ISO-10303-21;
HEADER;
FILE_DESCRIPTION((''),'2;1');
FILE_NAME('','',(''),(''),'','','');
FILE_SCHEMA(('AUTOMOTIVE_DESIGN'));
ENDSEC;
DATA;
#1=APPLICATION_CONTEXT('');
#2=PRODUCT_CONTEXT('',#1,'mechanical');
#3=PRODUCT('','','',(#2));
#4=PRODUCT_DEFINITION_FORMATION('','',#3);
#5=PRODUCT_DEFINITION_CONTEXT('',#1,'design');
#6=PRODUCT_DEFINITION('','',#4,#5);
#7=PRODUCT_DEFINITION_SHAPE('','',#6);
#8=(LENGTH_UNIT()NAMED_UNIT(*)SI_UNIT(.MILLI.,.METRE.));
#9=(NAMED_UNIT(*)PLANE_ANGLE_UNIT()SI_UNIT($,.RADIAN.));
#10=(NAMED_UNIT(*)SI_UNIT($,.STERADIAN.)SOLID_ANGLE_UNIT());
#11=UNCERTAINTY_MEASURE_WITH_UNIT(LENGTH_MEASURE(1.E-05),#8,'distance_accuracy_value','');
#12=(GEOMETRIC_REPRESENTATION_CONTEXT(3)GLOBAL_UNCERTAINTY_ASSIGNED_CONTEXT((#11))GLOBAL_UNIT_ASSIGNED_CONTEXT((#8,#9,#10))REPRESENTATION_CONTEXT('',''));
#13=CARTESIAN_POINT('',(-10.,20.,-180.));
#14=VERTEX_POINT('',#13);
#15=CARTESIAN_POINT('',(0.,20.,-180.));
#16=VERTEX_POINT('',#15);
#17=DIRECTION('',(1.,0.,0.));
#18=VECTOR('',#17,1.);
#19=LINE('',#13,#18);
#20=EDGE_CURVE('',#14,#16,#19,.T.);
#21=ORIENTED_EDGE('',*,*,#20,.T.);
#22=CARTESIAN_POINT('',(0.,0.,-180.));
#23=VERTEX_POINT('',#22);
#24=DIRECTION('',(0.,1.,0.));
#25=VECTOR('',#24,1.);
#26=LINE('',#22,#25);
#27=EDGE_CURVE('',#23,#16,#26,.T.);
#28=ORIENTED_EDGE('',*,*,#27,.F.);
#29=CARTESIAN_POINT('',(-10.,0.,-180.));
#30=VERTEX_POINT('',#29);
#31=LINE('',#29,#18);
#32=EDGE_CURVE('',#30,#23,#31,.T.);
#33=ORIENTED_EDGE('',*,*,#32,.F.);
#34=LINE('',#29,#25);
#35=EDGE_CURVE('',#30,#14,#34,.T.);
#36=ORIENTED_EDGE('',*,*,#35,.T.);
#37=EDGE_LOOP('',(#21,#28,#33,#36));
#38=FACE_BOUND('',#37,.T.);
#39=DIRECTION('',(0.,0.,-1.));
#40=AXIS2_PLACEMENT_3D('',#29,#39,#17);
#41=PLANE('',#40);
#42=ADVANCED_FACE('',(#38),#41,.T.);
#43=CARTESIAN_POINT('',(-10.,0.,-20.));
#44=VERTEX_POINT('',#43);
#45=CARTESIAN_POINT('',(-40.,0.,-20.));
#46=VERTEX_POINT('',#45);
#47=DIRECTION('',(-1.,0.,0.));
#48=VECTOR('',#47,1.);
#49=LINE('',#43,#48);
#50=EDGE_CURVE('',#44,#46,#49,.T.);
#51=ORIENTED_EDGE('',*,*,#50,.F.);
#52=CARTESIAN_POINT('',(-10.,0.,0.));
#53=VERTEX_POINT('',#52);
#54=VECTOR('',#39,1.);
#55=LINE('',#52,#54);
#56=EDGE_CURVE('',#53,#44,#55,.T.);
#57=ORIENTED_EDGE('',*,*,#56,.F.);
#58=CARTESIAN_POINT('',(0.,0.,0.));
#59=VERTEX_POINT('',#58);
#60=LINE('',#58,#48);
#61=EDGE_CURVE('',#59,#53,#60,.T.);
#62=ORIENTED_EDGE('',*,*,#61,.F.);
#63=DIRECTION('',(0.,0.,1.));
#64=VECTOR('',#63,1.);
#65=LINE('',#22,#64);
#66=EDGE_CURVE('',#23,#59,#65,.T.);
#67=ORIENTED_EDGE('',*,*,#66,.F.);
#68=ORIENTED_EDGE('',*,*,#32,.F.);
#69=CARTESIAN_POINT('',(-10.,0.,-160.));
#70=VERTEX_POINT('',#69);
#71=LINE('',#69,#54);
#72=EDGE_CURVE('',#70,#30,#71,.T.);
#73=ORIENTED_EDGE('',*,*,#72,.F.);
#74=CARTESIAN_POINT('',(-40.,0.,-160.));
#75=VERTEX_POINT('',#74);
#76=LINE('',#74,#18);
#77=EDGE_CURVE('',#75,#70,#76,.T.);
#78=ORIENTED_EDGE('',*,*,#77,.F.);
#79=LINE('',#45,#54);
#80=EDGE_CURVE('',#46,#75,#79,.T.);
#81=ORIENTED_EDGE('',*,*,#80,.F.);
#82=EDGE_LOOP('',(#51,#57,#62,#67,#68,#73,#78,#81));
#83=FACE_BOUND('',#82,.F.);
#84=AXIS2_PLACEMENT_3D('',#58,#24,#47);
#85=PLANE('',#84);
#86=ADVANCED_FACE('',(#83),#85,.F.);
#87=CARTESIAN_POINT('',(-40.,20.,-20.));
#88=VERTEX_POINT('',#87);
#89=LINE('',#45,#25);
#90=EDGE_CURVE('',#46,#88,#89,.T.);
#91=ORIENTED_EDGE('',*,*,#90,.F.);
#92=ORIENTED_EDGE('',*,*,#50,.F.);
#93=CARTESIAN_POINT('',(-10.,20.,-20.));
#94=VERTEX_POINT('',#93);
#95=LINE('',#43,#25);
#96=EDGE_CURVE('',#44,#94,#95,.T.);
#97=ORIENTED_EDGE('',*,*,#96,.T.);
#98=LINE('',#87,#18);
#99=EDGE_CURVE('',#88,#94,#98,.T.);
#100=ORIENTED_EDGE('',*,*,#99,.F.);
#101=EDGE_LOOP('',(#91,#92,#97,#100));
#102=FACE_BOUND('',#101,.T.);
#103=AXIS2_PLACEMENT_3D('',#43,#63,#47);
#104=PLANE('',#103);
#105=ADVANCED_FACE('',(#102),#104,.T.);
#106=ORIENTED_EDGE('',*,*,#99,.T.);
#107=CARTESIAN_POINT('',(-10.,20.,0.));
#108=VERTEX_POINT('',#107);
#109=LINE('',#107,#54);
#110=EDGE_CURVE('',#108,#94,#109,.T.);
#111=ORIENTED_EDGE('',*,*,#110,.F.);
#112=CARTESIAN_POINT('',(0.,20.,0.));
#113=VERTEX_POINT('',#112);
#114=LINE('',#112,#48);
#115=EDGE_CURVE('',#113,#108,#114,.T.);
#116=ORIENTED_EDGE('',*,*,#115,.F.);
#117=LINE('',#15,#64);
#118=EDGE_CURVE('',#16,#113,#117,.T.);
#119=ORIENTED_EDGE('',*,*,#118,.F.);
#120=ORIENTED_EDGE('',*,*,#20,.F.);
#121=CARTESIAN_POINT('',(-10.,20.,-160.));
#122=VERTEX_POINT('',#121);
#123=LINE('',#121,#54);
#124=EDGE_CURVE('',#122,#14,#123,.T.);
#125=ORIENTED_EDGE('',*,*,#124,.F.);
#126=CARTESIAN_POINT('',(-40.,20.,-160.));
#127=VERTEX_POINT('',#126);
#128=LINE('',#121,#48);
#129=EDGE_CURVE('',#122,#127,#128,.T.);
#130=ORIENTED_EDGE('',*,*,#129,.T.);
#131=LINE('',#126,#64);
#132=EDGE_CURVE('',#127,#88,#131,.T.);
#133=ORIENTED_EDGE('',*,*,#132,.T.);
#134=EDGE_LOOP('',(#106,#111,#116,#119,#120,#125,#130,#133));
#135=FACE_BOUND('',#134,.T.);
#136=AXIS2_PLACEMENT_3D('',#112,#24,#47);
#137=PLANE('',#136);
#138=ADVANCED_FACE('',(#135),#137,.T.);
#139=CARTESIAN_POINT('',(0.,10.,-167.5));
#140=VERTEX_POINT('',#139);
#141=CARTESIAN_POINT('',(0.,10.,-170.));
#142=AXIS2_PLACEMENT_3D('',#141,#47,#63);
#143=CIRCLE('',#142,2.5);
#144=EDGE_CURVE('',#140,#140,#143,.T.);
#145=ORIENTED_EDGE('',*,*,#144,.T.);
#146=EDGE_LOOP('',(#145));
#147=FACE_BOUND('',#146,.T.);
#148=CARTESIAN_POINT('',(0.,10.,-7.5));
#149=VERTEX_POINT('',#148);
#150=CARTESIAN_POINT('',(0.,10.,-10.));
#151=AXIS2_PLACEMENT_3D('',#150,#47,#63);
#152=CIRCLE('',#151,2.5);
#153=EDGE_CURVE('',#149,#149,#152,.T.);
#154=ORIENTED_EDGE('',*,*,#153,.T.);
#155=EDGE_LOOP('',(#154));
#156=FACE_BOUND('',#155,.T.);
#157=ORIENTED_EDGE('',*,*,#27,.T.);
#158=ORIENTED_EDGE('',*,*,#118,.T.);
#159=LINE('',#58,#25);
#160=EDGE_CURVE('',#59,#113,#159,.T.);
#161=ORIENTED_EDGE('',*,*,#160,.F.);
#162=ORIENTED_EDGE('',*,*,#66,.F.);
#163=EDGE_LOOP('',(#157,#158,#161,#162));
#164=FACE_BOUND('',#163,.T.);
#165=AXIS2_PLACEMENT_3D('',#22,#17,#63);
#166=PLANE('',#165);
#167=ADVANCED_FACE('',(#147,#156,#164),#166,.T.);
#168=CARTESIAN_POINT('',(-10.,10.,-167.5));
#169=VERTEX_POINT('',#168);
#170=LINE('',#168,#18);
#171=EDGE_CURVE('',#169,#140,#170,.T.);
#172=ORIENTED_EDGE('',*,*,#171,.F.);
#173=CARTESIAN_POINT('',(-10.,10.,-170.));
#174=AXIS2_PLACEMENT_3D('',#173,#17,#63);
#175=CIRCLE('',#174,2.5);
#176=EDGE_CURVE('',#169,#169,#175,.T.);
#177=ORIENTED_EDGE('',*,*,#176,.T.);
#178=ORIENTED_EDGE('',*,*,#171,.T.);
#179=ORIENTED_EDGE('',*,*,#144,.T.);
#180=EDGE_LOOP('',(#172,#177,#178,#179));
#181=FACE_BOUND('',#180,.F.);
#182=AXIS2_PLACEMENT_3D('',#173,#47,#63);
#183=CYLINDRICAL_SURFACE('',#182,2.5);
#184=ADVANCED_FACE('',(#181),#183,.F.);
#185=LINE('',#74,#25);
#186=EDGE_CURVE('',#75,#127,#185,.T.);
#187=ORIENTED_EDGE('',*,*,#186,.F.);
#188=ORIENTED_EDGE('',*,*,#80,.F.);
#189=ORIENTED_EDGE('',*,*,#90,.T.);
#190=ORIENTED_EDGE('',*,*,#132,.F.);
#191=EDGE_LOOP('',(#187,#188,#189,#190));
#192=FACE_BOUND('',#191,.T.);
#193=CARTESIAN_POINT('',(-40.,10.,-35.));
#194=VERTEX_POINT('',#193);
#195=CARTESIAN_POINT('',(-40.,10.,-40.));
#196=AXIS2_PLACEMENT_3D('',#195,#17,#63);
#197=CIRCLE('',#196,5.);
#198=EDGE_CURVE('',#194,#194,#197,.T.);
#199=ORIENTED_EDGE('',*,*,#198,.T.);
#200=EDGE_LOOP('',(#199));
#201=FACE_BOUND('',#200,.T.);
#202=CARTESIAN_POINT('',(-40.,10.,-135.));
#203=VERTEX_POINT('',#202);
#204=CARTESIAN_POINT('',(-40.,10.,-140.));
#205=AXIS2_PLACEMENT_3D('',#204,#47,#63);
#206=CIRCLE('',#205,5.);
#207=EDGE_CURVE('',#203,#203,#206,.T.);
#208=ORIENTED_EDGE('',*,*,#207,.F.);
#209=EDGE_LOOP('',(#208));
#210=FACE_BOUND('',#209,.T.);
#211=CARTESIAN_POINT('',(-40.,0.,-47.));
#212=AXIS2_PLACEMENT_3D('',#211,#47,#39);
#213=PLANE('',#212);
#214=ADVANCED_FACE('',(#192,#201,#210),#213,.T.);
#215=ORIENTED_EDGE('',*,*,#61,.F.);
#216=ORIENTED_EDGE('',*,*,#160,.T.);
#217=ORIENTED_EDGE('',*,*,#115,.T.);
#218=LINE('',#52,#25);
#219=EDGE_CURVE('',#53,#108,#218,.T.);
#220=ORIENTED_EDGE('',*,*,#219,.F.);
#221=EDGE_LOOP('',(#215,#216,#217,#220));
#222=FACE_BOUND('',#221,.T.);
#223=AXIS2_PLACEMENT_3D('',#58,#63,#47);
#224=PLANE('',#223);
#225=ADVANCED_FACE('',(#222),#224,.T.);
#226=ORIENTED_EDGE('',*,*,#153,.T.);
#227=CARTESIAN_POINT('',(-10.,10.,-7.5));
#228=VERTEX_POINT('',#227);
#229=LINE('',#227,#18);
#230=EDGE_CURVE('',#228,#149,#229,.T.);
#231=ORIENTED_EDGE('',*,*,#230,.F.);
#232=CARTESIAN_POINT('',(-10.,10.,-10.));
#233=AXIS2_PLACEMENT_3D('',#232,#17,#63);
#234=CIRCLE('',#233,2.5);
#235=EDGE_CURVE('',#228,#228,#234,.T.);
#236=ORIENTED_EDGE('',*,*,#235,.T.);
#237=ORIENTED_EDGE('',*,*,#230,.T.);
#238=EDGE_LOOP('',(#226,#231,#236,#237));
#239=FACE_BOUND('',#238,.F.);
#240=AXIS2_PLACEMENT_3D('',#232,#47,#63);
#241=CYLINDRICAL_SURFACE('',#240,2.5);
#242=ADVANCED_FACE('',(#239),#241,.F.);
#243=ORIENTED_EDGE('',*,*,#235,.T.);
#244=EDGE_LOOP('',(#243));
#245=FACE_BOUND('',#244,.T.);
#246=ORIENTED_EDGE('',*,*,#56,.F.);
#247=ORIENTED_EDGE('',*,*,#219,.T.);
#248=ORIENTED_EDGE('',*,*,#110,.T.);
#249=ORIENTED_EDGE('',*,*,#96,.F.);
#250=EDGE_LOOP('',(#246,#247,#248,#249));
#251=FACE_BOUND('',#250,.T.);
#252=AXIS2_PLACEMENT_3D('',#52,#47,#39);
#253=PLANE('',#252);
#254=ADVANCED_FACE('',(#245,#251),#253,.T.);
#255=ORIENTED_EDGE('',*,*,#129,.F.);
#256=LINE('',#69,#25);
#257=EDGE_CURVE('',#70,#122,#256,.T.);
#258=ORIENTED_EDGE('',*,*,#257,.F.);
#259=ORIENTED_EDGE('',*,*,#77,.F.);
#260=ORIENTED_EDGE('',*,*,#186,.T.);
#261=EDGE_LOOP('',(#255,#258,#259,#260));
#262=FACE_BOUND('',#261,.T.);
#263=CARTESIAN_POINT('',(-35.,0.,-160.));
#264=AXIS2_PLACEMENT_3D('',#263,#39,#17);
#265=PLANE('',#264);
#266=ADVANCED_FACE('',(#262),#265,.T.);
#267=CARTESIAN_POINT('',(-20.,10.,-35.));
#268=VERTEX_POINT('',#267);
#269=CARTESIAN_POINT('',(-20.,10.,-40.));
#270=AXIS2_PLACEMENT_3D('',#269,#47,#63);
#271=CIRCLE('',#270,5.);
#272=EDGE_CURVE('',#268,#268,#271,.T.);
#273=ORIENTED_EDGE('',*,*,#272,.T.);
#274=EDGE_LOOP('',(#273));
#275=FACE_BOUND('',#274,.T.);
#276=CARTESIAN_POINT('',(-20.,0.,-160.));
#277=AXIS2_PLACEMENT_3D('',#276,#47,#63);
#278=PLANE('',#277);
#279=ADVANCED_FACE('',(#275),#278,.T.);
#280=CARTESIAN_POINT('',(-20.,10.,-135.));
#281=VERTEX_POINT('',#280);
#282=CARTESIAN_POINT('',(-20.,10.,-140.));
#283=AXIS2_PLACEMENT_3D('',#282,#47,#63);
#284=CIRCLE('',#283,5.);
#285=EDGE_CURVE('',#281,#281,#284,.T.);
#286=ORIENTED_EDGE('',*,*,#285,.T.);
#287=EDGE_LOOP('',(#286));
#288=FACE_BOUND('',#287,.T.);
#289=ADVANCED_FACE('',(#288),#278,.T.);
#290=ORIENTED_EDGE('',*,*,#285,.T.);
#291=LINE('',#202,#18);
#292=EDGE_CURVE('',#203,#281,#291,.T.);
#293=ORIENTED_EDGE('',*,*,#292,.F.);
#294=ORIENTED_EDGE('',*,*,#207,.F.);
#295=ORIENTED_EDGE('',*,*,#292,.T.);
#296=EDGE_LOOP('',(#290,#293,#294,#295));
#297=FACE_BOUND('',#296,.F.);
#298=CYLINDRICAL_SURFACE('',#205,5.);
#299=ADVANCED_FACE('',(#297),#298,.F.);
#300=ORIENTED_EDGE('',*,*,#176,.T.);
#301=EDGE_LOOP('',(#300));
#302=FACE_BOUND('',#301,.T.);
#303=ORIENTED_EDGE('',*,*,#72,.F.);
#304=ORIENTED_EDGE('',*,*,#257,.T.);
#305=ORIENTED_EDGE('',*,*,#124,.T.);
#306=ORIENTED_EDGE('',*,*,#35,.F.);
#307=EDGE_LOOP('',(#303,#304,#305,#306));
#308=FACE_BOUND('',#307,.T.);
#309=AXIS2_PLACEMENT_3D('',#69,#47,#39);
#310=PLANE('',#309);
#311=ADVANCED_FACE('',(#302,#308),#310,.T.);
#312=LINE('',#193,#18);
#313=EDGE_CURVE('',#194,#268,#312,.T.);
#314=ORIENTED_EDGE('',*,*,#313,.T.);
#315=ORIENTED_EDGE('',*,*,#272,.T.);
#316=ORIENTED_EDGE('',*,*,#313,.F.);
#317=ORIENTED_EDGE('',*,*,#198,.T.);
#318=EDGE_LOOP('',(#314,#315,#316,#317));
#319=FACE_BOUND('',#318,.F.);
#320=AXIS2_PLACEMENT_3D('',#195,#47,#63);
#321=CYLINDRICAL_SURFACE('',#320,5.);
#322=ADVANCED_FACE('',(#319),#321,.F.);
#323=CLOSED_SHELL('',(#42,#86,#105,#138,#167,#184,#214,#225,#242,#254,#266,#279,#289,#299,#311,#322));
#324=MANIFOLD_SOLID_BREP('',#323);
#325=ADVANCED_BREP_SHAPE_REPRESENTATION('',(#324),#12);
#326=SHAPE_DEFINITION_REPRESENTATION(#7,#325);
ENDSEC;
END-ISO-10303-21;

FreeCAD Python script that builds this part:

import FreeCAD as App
import Part
import Sketcher
from FreeCAD import Vector
Q = App.Units.Quantity

doc = App.newDocument("Part")
body = doc.addObject("PartDesign::Body", "Body")

sketch1 = body.newObject("Sketcher::SketchObject", "Sketch")
sketch1.AttachmentSupport = (doc.getObject("XZ_Plane"), [""])
sketch1.MapMode = "FlatFace"
sketch1.addGeometry([
    Part.LineSegment(Vector(-10, 0, 0), Vector(0, 0, 0)),
    Part.LineSegment(Vector(0, 0, 0), Vector(0, -180, 0)),
    Part.LineSegment(Vector(0, -180, 0), Vector(-10, -180, 0)),
    Part.LineSegment(Vector(-10, -180, 0), Vector(-10, -160, 0)),
    Part.LineSegment(Vector(-10, -160, 0), Vector(-40, -160, 0)),
    Part.LineSegment(Vector(-40, -160, 0), Vector(-40, -20, 0)),
    Part.LineSegment(Vector(-40, -20, 0), Vector(-10, -20, 0)),
    Part.LineSegment(Vector(-10, -20, 0), Vector(-10, 0, 0)),
], False)
sketch1.addConstraint([
    Sketcher.Constraint("Coincident", 0, 2, 1, 1),
    Sketcher.Constraint("Coincident", 1, 2, 2, 1),
    Sketcher.Constraint("Coincident", 2, 2, 3, 1),
    Sketcher.Constraint("Coincident", 3, 2, 4, 1),
    Sketcher.Constraint("Coincident", 4, 2, 5, 1),
    Sketcher.Constraint("Coincident", 5, 2, 6, 1),
    Sketcher.Constraint("Coincident", 6, 2, 7, 1),
    Sketcher.Constraint("Coincident", 7, 2, 0, 1),
    Sketcher.Constraint("Horizontal", 0),
    Sketcher.Constraint("Vertical", 1),
    Sketcher.Constraint("Horizontal", 2),
    Sketcher.Constraint("Vertical", 3),
    Sketcher.Constraint("Horizontal", 4),
    Sketcher.Constraint("Vertical", 5),
    Sketcher.Constraint("Horizontal", 6),
    Sketcher.Constraint("Vertical", 7),
    Sketcher.Constraint("Coincident", 0, 2, -1, 1),
    Sketcher.Constraint("Vertical", 3, 2, 6, 2),
    Sketcher.Constraint("Equal", 3, 7),
    Sketcher.Constraint("DistanceX", 0, 1, 0, 2, Q("10 mm")),
    Sketcher.Constraint("DistanceX", 4, 2, 4, 1, Q("30 mm")),
    Sketcher.Constraint("DistanceY", 3, 1, 3, 2, Q("20 mm")),
    Sketcher.Constraint("DistanceY", 5, 1, 5, 2, Q("140 mm")),
])
pad1 = body.newObject("PartDesign::Pad", "Pad")
pad1.Profile = sketch1
pad1.Length = 20
pad1.Reversed = True

sketch2 = body.newObject("Sketcher::SketchObject", "Sketch001")
sketch2.AttachmentSupport = (doc.getObject("YZ_Plane"), [""])
sketch2.MapMode = "FlatFace"
sketch2.AttachmentOffset = App.Placement(Vector(0, 0, -10), App.Rotation())
sketch2.addGeometry([
    Part.Circle(Vector(10, -10, 0), Vector(0, 0, 1), 2.5),
    Part.Circle(Vector(10, -170, 0), Vector(0, 0, 1), 2.5),
], False)
sketch2.addConstraint([
    Sketcher.Constraint("Equal", 0, 1),
    Sketcher.Constraint("Vertical", 0, 3, 1, 3),
    Sketcher.Constraint("Diameter", 0, Q("5 mm")),
    Sketcher.Constraint("DistanceX", -1, 1, 0, 3, Q("10 mm")),
    Sketcher.Constraint("DistanceY", 0, 3, -1, 1, Q("10 mm")),
    Sketcher.Constraint("DistanceY", 1, 3, -1, 1, Q("170 mm")),
])
pocket1 = body.newObject("PartDesign::Pocket", "Pocket")
pocket1.Profile = sketch2
pocket1.Length = 44.25
pocket1.Reversed = True

sketch3 = body.newObject("Sketcher::SketchObject", "Sketch002")
sketch3.AttachmentSupport = (doc.getObject("YZ_Plane"), [""])
sketch3.MapMode = "FlatFace"
sketch3.AttachmentOffset = App.Placement(Vector(0, 0, -40), App.Rotation())
sketch3.addGeometry([
    Part.Circle(Vector(10, -140, 0), Vector(0, 0, 1), 5),
    Part.Circle(Vector(10, -40, 0), Vector(0, 0, 1), 5),
], False)
sketch3.addConstraint([
    Sketcher.Constraint("Equal", 0, 1),
    Sketcher.Constraint("Vertical", 0, 3, 1, 3),
    Sketcher.Constraint("Diameter", 0, Q("10 mm")),
    Sketcher.Constraint("DistanceX", -1, 1, 0, 3, Q("10 mm")),
    Sketcher.Constraint("DistanceY", 0, 3, 1, 3, Q("100 mm")),
    Sketcher.Constraint("DistanceY", 0, 3, -1, 1, Q("140 mm")),
])
pocket2 = body.newObject("PartDesign::Pocket", "Pocket001")
pocket2.Profile = sketch3
pocket2.Length = 20
pocket2.Reversed = True

doc.recompute()
